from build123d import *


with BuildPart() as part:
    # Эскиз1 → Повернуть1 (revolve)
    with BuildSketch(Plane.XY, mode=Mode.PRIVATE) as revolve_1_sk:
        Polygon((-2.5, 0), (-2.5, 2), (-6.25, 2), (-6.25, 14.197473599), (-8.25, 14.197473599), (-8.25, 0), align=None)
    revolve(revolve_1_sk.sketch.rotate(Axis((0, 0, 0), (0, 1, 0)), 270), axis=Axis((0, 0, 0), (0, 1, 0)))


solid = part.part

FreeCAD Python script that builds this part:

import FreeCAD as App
import Part
import Sketcher


def add_polygon(sketch, points):
    """Adds a closed chain of lines whose ends are joined by coincident constraints."""
    first, n = sketch.GeometryCount, len(points)
    for a, b in zip(points, points[1:] + points[:1]):
        sketch.addGeometry(Part.LineSegment(App.Vector(*a, 0), App.Vector(*b, 0)), False)
    for i in range(n):
        sketch.addConstraint(Sketcher.Constraint("Coincident", first + i, 2, first + (i + 1) % n, 1))

doc = App.newDocument("Part")
body = doc.addObject("PartDesign::Body", "Body")

sketch1 = doc.addObject("Sketcher::SketchObject", "Sketch")
body.addObject(sketch1)
sketch1.AttachmentSupport = (doc.XY_Plane, [""])
sketch1.MapMode = "FlatFace"
add_polygon(sketch1, [(-2.5, 0), (-2.5, 2), (-6.25, 2), (-6.25, 14.197474), (-8.25, 14.197474), (-8.25, 0)])
sketch1.addConstraint(Sketcher.Constraint("Vertical", 0))
sketch1.addConstraint(Sketcher.Constraint("Horizontal", 1))
sketch1.addConstraint(Sketcher.Constraint("Vertical", 2))
sketch1.addConstraint(Sketcher.Constraint("Horizontal", 3))
sketch1.addConstraint(Sketcher.Constraint("Vertical", 4))
sketch1.addConstraint(Sketcher.Constraint("Horizontal", 5))
sketch1.addConstraint(Sketcher.Constraint("PointOnObject", 4, 2, -1))
sketch1.addConstraint(Sketcher.Constraint("Equal", 3, 0))
sketch1.addConstraint(Sketcher.Constraint("DistanceX", 3, 2, 3, 1, 2.0))
sketch1.addConstraint(Sketcher.Constraint("DistanceX", 1, 2, 1, 1, 3.75))
sketch1.addConstraint(Sketcher.Constraint("DistanceX", 0, 2, -1, 1, 2.5))
sketch1.addConstraint(Sketcher.Constraint("DistanceY", 2, 1, 2, 2, 12.197474))
revolution = doc.addObject("PartDesign::Revolution", "Revolution")
body.addObject(revolution)
revolution.Profile = sketch1
revolution.ReferenceAxis = (sketch1, ["V_Axis"])
revolution.Angle = 360

doc.recompute()
